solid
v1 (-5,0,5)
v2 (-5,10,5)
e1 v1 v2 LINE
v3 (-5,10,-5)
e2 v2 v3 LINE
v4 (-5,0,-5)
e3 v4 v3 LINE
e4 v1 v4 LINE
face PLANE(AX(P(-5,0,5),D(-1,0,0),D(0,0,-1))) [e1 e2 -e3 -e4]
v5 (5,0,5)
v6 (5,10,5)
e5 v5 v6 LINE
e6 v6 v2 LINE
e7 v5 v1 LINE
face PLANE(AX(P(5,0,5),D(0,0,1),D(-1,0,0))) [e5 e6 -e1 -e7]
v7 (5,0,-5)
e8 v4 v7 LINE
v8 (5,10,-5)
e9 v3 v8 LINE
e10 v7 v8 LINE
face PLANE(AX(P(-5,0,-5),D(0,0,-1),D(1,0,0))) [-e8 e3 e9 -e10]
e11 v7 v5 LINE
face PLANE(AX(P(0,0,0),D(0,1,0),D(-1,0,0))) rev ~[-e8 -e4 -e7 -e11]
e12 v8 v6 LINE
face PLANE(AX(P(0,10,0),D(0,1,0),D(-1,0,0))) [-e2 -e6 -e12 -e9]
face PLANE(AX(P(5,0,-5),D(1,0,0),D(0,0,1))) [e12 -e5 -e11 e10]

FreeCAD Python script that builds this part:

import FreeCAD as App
import Part
import Sketcher

V = App.Vector


def add_polygon(sketch, points):
    """Adds a closed chain of lines whose ends are joined by coincident constraints."""
    first, n = sketch.GeometryCount, len(points)
    for a, b in zip(points, points[1:] + points[:1]):
        sketch.addGeometry(Part.LineSegment(App.Vector(*a, 0), App.Vector(*b, 0)), False)
    for i in range(n):
        sketch.addConstraint(Sketcher.Constraint("Coincident", first + i, 2, first + (i + 1) % n, 1))

doc = App.newDocument("Part")
body = doc.addObject("PartDesign::Body", "Body")

sketch1 = body.newObject("Sketcher::SketchObject", "Sketch")
sketch1.AttachmentSupport = (doc.getObject("XZ_Plane"), [""])
sketch1.MapMode = "FlatFace"
add_polygon(sketch1, [(-5, 5), (5, 5), (5, -5), (-5, -5)])
sketch1.addConstraint([
    Sketcher.Constraint("Horizontal", 0),
    Sketcher.Constraint("Vertical", 1),
    Sketcher.Constraint("Horizontal", 2),
    Sketcher.Constraint("Vertical", 3),
    Sketcher.Constraint("Symmetric", 0, 2, 2, 2, -1, 1),
    Sketcher.Constraint("Equal", 2, 1),
    Sketcher.Constraint("DistanceX", 0, 1, 0, 2, 10.0),
])
pad1 = body.newObject("PartDesign::Pad", "Pad")
pad1.Profile = sketch1
pad1.Length = 10
pad1.Reversed = True

doc.recompute()
